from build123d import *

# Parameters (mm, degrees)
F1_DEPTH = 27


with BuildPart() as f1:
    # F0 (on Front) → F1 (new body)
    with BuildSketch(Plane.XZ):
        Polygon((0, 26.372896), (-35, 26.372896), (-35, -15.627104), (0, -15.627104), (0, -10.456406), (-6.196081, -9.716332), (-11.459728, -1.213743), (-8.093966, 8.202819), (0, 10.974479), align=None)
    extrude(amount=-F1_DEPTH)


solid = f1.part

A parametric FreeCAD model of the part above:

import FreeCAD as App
import Part
import Sketcher

doc = App.newDocument("Part")
params = doc.addObject("Spreadsheet::Sheet", "Params")
for row, (alias, value) in enumerate([
    ("sketch1_width", "35 mm"),
    ("sketch1_height", "42 mm"),
    ("sketch1_length", "10 mm"),
    ("pad1_length", "27 mm"),
], start=1):
    params.set(f"A{row}", alias)
    params.set(f"B{row}", "=" + value)
    params.setAlias(f"B{row}", alias)

body = doc.addObject("PartDesign::Body", "Body")

sketch1 = body.newObject("Sketcher::SketchObject", "Sketch")
sketch1.AttachmentSupport = (doc.getObject("XZ_Plane"), [""])
sketch1.MapMode = "FlatFace"
sketch1.addGeometry([
    Part.LineSegment(App.Vector(0, 26, 0), App.Vector(-35, 26, 0)),
    Part.LineSegment(App.Vector(-35, 26, 0), App.Vector(-35, -16, 0)),
    Part.LineSegment(App.Vector(-35, -16, 0), App.Vector(0, -16, 0)),
    Part.LineSegment(App.Vector(0, -16, 0), App.Vector(0, -10, 0)),
    Part.LineSegment(App.Vector(0, -10, 0), App.Vector(-6, -10, 0)),
    Part.LineSegment(App.Vector(-6, -10, 0), App.Vector(-11, -1, 0)),
    Part.LineSegment(App.Vector(-11, -1, 0), App.Vector(-8, 8, 0)),
    Part.LineSegment(App.Vector(-8, 8, 0), App.Vector(0, 11, 0)),
    Part.LineSegment(App.Vector(0, 11, 0), App.Vector(0, 26, 0)),
], False)
sketch1.addConstraint([
    Sketcher.Constraint("Coincident", 0, 2, 1, 1),
    Sketcher.Constraint("Coincident", 1, 2, 2, 1),
    Sketcher.Constraint("Coincident", 2, 2, 3, 1),
    Sketcher.Constraint("Coincident", 3, 2, 4, 1),
    Sketcher.Constraint("Coincident", 4, 2, 5, 1),
    Sketcher.Constraint("Coincident", 5, 2, 6, 1),
    Sketcher.Constraint("Coincident", 6, 2, 7, 1),
    Sketcher.Constraint("Coincident", 7, 2, 8, 1),
    Sketcher.Constraint("Coincident", 8, 2, 0, 1),
    Sketcher.Constraint("Horizontal", 0),
    Sketcher.Constraint("Vertical", 1),
    Sketcher.Constraint("Horizontal", 2),
    Sketcher.Constraint("Vertical", 3),
    Sketcher.Constraint("Vertical", 8),
    Sketcher.Constraint("PointOnObject", 2, 2, -2),
    Sketcher.Constraint("PointOnObject", 7, 2, -2),
    Sketcher.Constraint("Equal", 5, 6),
    Sketcher.Constraint("DistanceX", 0, 2, 0, 1, 35.0),
    Sketcher.Constraint("DistanceY", 1, 2, 1, 1, 42.0),
    Sketcher.Constraint("Distance", 5, 10.0),
    Sketcher.Constraint("DistanceY", 3, 2, 0, 2, 36.829302),
    Sketcher.Constraint("Distance", 7, 8.555372),
    Sketcher.Constraint("DistanceY", 8, 1, 8, 2, 15.398417),
    Sketcher.Constraint("DistanceX", 4, 2, -1, 1, 6.196081),
    Sketcher.Constraint("DistanceY", -1, 1, 6, 2, 8.202819),
    Sketcher.Constraint("DistanceY", -1, 1, 7, 2, 10.974479),
    Sketcher.Constraint("DistanceY", 2, 2, 4, 2, 5.910772),
])
sketch1.setExpression("Constraints[17]", "Params.sketch1_width")
sketch1.setExpression("Constraints[18]", "Params.sketch1_height")
sketch1.setExpression("Constraints[19]", "Params.sketch1_length")
pad1 = body.newObject("PartDesign::Pad", "Pad")
pad1.Profile = sketch1
pad1.setExpression("Length", "Params.pad1_length")
pad1.Reversed = True

doc.recompute()
